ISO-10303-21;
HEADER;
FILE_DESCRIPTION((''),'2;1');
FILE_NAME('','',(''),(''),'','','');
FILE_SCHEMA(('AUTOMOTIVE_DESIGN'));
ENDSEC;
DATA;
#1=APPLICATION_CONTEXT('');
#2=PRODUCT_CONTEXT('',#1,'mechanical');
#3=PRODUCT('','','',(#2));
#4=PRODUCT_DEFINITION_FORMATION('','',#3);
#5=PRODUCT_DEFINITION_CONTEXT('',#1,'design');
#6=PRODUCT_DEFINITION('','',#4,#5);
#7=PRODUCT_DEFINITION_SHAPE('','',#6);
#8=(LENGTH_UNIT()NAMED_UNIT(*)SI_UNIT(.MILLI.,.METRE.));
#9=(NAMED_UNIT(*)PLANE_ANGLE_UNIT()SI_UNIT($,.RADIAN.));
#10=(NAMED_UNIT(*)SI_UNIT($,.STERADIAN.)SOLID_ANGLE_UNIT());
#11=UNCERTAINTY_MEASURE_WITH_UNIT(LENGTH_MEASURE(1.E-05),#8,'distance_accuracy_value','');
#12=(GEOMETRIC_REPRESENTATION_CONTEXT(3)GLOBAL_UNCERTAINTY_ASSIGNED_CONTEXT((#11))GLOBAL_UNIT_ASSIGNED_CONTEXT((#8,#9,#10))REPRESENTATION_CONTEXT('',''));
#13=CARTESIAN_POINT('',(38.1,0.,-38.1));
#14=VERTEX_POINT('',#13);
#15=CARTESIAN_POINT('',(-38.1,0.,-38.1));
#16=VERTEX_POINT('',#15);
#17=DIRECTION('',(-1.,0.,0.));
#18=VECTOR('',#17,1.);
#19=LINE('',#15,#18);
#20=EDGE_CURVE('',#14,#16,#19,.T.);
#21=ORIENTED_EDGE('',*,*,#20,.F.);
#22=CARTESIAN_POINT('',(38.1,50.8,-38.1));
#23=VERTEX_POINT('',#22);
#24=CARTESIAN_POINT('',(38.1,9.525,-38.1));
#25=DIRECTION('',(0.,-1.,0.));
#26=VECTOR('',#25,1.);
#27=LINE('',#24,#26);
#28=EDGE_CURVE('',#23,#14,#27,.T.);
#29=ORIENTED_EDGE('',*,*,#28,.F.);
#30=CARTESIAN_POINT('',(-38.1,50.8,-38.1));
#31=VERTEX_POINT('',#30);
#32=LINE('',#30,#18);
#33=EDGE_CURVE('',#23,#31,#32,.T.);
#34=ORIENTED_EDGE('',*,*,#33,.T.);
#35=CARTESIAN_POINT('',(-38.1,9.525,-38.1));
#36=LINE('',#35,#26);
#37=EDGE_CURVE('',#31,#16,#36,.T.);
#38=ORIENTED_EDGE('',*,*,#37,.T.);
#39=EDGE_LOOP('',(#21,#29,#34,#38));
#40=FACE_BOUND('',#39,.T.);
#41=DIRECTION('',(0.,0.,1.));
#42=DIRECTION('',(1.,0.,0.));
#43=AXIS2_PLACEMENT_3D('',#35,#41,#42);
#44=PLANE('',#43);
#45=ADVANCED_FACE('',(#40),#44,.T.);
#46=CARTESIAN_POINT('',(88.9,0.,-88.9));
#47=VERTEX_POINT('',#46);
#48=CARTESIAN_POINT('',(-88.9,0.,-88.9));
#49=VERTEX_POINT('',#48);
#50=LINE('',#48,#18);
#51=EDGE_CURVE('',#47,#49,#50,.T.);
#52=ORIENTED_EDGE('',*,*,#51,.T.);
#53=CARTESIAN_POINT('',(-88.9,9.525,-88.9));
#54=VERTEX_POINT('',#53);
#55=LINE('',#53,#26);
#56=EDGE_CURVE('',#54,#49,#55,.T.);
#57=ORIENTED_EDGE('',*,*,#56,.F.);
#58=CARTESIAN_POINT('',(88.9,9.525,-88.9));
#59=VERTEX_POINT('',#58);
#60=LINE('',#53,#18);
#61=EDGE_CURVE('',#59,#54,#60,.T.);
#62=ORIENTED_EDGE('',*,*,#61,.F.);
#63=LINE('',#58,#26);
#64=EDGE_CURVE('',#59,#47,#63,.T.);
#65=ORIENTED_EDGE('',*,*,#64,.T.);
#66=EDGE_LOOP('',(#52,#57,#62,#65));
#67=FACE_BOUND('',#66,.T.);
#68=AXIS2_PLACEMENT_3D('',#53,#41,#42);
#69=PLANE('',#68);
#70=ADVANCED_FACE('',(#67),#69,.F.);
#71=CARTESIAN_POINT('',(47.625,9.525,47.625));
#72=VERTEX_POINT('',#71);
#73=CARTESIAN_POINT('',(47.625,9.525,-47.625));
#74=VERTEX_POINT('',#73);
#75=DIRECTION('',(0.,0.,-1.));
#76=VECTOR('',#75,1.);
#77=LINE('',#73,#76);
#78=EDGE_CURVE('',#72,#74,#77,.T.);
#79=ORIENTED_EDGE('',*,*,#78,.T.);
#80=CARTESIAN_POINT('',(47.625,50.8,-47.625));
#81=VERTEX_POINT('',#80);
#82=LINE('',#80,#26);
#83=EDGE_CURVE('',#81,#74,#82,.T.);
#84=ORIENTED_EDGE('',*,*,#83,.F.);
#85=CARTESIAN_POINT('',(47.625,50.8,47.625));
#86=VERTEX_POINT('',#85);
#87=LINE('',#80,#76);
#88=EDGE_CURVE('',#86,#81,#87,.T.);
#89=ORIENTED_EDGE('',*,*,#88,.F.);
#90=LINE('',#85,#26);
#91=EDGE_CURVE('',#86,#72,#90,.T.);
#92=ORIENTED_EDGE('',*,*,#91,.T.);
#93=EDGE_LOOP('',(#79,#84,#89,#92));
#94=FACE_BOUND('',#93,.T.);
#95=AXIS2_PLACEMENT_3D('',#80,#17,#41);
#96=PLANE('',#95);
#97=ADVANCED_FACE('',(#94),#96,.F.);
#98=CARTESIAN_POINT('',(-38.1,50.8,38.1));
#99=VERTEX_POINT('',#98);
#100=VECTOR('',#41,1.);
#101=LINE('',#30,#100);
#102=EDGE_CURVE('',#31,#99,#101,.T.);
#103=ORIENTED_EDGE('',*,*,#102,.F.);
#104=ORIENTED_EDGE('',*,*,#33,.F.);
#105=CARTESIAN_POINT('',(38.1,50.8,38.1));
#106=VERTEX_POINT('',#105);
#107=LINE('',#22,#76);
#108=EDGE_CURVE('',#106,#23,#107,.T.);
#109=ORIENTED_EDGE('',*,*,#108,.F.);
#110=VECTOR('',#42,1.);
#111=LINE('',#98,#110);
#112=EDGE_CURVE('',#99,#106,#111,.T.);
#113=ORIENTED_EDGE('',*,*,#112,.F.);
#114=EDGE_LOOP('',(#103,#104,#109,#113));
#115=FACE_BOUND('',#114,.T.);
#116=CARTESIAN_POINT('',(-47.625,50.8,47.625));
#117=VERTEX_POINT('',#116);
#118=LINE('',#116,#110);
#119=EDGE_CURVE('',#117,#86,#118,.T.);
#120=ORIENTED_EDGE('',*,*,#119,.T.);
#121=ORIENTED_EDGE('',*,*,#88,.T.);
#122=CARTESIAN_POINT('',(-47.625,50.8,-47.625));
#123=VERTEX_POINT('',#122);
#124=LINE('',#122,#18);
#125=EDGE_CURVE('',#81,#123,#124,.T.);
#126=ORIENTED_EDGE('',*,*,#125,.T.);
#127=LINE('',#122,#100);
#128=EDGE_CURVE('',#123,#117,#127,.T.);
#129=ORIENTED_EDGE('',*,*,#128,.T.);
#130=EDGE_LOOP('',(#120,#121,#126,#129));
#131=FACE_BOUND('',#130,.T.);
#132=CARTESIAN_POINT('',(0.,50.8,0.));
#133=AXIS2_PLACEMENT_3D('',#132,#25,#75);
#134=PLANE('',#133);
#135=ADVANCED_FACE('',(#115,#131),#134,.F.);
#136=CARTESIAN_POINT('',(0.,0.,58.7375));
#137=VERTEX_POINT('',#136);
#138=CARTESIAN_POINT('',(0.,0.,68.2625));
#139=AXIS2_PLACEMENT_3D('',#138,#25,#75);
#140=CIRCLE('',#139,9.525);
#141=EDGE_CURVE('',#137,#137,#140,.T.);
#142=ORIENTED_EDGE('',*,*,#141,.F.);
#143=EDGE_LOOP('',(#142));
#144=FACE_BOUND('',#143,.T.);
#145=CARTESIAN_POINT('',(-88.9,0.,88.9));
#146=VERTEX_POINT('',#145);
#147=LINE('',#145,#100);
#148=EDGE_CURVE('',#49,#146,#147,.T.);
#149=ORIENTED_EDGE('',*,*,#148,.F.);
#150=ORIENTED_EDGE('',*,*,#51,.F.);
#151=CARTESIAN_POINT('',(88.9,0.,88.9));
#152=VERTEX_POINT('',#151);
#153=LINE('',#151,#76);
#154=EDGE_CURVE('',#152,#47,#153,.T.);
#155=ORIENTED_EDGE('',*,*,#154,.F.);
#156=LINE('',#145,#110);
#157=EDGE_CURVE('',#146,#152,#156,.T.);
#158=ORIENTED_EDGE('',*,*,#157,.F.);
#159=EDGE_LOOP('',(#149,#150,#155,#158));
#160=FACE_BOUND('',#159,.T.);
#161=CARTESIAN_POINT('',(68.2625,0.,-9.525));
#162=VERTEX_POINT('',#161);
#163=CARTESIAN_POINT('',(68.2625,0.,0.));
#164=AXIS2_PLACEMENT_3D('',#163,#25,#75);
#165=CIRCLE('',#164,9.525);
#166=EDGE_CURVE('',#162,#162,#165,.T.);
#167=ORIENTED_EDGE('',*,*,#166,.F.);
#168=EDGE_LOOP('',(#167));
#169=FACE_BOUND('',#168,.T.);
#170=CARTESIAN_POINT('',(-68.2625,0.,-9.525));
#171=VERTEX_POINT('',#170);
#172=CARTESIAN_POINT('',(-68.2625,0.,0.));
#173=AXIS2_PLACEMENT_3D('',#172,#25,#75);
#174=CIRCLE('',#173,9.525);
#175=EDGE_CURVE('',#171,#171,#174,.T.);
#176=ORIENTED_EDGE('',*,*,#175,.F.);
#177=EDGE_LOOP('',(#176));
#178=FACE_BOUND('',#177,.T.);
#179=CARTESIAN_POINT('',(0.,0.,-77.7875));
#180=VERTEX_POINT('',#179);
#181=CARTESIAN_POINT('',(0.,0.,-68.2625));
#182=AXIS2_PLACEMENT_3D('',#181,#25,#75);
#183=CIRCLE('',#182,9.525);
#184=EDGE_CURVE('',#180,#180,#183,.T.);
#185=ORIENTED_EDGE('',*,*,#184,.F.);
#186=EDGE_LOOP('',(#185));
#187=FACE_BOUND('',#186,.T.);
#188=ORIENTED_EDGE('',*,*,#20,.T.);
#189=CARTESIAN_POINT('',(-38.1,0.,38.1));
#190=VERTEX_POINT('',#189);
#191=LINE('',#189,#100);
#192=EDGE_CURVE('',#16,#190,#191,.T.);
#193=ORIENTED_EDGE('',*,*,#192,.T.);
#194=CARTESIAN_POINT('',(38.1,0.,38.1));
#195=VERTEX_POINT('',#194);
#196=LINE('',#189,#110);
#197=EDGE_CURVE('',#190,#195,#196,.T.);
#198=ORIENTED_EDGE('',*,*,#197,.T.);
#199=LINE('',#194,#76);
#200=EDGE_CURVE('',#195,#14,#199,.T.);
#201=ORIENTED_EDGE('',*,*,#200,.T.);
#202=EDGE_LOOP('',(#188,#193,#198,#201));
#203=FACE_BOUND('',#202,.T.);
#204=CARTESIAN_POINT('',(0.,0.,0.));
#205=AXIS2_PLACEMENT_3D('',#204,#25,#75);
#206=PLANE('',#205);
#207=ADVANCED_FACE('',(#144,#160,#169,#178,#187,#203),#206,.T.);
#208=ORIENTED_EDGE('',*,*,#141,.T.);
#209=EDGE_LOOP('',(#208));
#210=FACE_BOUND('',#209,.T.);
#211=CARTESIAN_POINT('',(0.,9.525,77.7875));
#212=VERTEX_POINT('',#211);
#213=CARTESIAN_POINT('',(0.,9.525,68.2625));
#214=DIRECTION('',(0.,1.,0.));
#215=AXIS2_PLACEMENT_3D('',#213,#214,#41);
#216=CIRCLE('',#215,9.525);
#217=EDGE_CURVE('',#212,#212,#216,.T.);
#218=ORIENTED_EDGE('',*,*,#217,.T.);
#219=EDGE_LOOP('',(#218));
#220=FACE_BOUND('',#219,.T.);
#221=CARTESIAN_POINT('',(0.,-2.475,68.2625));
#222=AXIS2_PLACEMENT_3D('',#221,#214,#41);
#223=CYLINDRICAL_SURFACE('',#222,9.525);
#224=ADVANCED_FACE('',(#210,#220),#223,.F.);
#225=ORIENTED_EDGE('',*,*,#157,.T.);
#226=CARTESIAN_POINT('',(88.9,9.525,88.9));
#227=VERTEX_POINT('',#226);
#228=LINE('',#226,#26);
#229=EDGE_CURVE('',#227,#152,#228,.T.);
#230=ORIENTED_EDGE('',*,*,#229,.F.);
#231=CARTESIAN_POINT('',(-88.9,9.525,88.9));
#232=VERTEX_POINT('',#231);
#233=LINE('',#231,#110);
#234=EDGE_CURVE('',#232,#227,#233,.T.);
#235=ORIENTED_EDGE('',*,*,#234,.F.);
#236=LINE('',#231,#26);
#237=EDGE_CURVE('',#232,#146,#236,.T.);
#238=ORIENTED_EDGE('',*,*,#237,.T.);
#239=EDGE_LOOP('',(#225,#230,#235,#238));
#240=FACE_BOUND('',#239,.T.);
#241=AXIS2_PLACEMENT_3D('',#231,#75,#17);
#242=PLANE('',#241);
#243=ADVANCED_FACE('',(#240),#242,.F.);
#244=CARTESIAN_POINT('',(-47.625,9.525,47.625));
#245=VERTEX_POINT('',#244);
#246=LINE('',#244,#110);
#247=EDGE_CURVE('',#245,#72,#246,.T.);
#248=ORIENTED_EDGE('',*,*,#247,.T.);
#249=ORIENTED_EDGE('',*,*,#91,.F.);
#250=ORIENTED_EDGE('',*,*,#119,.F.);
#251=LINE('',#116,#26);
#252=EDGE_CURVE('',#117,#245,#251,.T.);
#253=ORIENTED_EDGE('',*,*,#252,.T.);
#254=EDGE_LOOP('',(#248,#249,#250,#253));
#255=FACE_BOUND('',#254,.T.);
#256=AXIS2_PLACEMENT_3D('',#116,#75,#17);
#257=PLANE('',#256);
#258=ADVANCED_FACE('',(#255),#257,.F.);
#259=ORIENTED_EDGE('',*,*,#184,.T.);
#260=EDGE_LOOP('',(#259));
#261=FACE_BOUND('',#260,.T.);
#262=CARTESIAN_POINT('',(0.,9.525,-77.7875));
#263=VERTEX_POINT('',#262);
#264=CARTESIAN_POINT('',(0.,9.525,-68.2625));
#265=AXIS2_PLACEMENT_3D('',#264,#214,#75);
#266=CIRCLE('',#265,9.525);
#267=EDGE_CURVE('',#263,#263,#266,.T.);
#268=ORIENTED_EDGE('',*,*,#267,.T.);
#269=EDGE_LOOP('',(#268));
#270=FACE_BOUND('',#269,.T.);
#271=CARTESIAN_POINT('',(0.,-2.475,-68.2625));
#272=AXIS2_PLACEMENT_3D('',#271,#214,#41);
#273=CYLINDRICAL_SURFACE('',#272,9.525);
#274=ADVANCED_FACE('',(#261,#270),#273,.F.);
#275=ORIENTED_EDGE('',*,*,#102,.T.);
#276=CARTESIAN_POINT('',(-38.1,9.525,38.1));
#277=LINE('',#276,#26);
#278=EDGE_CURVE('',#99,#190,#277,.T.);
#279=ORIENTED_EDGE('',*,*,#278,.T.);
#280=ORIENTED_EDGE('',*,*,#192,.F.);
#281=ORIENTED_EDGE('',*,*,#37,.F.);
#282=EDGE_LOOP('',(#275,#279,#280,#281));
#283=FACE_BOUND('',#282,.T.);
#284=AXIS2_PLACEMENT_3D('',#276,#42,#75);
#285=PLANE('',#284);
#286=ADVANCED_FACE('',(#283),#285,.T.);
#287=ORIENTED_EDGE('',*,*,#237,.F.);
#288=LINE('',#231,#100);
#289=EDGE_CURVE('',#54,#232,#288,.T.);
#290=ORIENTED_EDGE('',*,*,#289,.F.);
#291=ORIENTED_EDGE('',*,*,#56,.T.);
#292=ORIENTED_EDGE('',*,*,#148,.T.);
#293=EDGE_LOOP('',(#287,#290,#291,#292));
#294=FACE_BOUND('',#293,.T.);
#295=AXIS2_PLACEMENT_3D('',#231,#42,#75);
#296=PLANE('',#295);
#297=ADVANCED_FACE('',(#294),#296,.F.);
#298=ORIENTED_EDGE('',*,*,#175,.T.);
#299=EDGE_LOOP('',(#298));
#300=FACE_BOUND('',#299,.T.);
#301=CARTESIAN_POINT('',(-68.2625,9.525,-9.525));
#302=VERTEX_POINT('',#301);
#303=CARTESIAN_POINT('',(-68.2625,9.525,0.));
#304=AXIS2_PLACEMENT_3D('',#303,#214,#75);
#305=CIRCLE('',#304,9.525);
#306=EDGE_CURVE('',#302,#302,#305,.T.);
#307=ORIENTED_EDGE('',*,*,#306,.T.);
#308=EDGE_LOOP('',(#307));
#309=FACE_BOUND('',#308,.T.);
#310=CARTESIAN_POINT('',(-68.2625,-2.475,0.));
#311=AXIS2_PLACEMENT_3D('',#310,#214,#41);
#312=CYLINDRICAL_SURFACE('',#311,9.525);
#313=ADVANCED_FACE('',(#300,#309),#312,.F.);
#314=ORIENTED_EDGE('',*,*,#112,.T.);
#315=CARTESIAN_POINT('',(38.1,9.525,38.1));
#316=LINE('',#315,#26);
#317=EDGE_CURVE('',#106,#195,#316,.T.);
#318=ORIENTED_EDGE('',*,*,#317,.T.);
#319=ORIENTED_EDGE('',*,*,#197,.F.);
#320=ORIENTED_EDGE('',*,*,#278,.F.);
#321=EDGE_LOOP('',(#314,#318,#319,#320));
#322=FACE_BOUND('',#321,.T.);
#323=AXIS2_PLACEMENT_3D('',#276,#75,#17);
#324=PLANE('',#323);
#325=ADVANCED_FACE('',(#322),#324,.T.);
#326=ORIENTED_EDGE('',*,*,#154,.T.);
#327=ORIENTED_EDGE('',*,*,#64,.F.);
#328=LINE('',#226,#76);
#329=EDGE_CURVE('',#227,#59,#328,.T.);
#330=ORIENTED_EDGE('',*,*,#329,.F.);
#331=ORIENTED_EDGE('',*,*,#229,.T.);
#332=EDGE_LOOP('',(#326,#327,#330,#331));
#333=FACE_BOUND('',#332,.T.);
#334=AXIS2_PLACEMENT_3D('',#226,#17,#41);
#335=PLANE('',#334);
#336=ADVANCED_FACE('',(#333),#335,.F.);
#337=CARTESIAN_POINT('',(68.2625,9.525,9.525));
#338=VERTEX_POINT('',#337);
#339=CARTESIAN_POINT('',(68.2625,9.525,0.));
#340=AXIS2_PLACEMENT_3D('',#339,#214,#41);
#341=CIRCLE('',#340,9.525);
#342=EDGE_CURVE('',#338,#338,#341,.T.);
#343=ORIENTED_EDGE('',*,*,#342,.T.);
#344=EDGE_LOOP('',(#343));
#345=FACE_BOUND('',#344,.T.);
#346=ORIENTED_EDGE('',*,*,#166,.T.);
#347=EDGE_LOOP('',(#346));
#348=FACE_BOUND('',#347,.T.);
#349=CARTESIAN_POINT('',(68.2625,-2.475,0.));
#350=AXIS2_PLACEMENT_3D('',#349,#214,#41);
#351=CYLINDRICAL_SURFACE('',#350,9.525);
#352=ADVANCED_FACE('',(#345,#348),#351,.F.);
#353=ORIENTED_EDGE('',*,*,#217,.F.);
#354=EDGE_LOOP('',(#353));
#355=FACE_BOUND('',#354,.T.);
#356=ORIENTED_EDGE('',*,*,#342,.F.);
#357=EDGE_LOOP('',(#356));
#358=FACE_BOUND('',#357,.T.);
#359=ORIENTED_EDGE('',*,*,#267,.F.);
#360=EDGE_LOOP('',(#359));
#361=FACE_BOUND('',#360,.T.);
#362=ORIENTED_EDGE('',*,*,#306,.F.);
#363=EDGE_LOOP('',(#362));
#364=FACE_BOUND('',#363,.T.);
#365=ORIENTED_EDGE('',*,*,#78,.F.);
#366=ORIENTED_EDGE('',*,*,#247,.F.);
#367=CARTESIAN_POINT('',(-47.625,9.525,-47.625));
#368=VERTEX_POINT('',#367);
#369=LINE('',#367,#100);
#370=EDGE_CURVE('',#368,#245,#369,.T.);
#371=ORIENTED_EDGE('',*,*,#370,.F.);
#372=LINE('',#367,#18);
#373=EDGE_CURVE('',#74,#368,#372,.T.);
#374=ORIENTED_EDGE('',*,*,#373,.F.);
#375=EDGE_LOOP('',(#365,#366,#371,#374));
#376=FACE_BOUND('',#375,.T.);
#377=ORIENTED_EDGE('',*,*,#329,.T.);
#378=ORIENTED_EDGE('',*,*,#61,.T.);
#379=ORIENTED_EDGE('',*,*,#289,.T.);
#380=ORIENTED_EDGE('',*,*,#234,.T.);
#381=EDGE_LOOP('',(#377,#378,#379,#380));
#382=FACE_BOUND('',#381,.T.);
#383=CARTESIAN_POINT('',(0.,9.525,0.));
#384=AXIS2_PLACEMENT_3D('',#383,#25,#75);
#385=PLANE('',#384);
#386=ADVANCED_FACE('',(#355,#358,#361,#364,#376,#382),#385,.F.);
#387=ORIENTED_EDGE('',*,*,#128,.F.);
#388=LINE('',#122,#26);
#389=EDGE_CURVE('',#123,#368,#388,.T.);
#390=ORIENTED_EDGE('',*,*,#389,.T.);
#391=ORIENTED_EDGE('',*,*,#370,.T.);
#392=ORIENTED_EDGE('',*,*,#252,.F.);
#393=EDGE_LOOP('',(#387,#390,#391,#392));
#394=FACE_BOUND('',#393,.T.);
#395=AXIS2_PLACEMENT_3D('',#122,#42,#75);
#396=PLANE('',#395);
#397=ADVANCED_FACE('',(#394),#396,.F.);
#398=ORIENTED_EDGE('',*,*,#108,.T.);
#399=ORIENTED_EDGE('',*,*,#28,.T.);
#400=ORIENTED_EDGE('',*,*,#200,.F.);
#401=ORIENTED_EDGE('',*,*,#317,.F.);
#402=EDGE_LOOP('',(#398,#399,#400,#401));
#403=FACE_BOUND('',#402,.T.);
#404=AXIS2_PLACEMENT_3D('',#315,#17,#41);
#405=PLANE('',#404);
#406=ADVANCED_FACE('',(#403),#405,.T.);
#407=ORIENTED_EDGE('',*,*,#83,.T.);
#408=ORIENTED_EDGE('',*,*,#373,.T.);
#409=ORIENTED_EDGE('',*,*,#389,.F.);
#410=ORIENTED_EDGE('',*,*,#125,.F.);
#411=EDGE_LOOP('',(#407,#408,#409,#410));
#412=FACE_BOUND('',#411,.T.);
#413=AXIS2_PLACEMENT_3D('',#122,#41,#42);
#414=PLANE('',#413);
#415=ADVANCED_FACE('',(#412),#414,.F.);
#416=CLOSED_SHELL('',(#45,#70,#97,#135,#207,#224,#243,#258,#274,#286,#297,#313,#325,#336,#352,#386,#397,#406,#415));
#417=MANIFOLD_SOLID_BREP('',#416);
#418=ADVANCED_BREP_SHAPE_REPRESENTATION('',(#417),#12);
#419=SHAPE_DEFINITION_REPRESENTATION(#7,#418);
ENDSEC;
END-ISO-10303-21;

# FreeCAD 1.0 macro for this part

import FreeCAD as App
import Part
import Sketcher
from FreeCAD import Vector
Q = App.Units.Quantity

doc = App.newDocument("Part")
body = doc.addObject("PartDesign::Body", "Body")

# Sketch on XZ plane
sketch1 = body.newObject("Sketcher::SketchObject", "Sketch")
sketch1.AttachmentSupport = (doc.getObject("XZ_Plane"), [""])
sketch1.MapMode = "FlatFace"
sketch1.addGeometry(Part.LineSegment(Vector(-89, -89, 0), Vector(-89, 89, 0)), False)
sketch1.addGeometry(Part.LineSegment(Vector(-89, 89, 0), Vector(89, 89, 0)), False)
sketch1.addGeometry(Part.LineSegment(Vector(89, 89, 0), Vector(89, -89, 0)), False)
sketch1.addGeometry(Part.LineSegment(Vector(89, -89, 0), Vector(-89, -89, 0)), False)
sketch1.addGeometry(Part.LineSegment(Vector(38, 38, 0), Vector(-38, 38, 0)), False)
sketch1.addGeometry(Part.LineSegment(Vector(-38, 38, 0), Vector(-38, -38, 0)), False)
sketch1.addGeometry(Part.LineSegment(Vector(-38, -38, 0), Vector(38, -38, 0)), False)
sketch1.addGeometry(Part.LineSegment(Vector(38, -38, 0), Vector(38, 38, 0)), False)
sketch1.addConstraint(Sketcher.Constraint("Coincident", 0, 2, 1, 1))
sketch1.addConstraint(Sketcher.Constraint("Coincident", 1, 2, 2, 1))
sketch1.addConstraint(Sketcher.Constraint("Coincident", 2, 2, 3, 1))
sketch1.addConstraint(Sketcher.Constraint("Coincident", 3, 2, 0, 1))
sketch1.addConstraint(Sketcher.Constraint("Coincident", 4, 2, 5, 1))
sketch1.addConstraint(Sketcher.Constraint("Coincident", 5, 2, 6, 1))
sketch1.addConstraint(Sketcher.Constraint("Coincident", 6, 2, 7, 1))
sketch1.addConstraint(Sketcher.Constraint("Coincident", 7, 2, 4, 1))
sketch1.addConstraint(Sketcher.Constraint("Vertical", 0))
sketch1.addConstraint(Sketcher.Constraint("Horizontal", 1))
sketch1.addConstraint(Sketcher.Constraint("Vertical", 2))
sketch1.addConstraint(Sketcher.Constraint("Horizontal", 3))
sketch1.addConstraint(Sketcher.Constraint("Horizontal", 4))
sketch1.addConstraint(Sketcher.Constraint("Vertical", 5))
sketch1.addConstraint(Sketcher.Constraint("Horizontal", 6))
sketch1.addConstraint(Sketcher.Constraint("Vertical", 7))
sketch1.addConstraint(Sketcher.Constraint("Symmetric", 0, 2, 2, 2, -1, 1))
sketch1.addConstraint(Sketcher.Constraint("Symmetric", 4, 2, 6, 2, -1, 1))
sketch1.addConstraint(Sketcher.Constraint("Equal", 3, 0))
sketch1.addConstraint(Sketcher.Constraint("Equal", 6, 5))
sketch1.addConstraint(Sketcher.Constraint("DistanceX", 1, 1, 1, 2, Q("7 in")))
sketch1.addConstraint(Sketcher.Constraint("DistanceX", 4, 2, 4, 1, Q("3 in")))
pad1 = body.newObject("PartDesign::Pad", "Pad")
pad1.Profile = sketch1
pad1.Length = Q("0.375 in")
pad1.Reversed = True

# Sketch on XZ plane
sketch2 = body.newObject("Sketcher::SketchObject", "Sketch001")
sketch2.AttachmentSupport = (doc.getObject("XZ_Plane"), [""])
sketch2.MapMode = "FlatFace"
sketch2.AttachmentOffset = App.Placement(Vector(0, 0, -0.375 * 25.4), App.Rotation())
sketch2.addGeometry(Part.LineSegment(Vector(-48, -48, 0), Vector(-48, 48, 0)), False)
sketch2.addGeometry(Part.LineSegment(Vector(-48, 48, 0), Vector(48, 48, 0)), False)
sketch2.addGeometry(Part.LineSegment(Vector(48, 48, 0), Vector(48, -48, 0)), False)
sketch2.addGeometry(Part.LineSegment(Vector(48, -48, 0), Vector(-48, -48, 0)), False)
sketch2.addGeometry(Part.LineSegment(Vector(38, 38, 0), Vector(-38, 38, 0)), False)
sketch2.addGeometry(Part.LineSegment(Vector(-38, 38, 0), Vector(-38, -38, 0)), False)
sketch2.addGeometry(Part.LineSegment(Vector(-38, -38, 0), Vector(38, -38, 0)), False)
sketch2.addGeometry(Part.LineSegment(Vector(38, -38, 0), Vector(38, 38, 0)), False)
sketch2.addConstraint(Sketcher.Constraint("Coincident", 0, 2, 1, 1))
sketch2.addConstraint(Sketcher.Constraint("Coincident", 1, 2, 2, 1))
sketch2.addConstraint(Sketcher.Constraint("Coincident", 2, 2, 3, 1))
sketch2.addConstraint(Sketcher.Constraint("Coincident", 3, 2, 0, 1))
sketch2.addConstraint(Sketcher.Constraint("Coincident", 4, 2, 5, 1))
sketch2.addConstraint(Sketcher.Constraint("Coincident", 5, 2, 6, 1))
sketch2.addConstraint(Sketcher.Constraint("Coincident", 6, 2, 7, 1))
sketch2.addConstraint(Sketcher.Constraint("Coincident", 7, 2, 4, 1))
sketch2.addConstraint(Sketcher.Constraint("Vertical", 0))
sketch2.addConstraint(Sketcher.Constraint("Horizontal", 1))
sketch2.addConstraint(Sketcher.Constraint("Vertical", 2))
sketch2.addConstraint(Sketcher.Constraint("Horizontal", 3))
sketch2.addConstraint(Sketcher.Constraint("Horizontal", 4))
sketch2.addConstraint(Sketcher.Constraint("Vertical", 5))
sketch2.addConstraint(Sketcher.Constraint("Horizontal", 6))
sketch2.addConstraint(Sketcher.Constraint("Vertical", 7))
sketch2.addConstraint(Sketcher.Constraint("Symmetric", 0, 2, 2, 2, -1, 1))
sketch2.addConstraint(Sketcher.Constraint("Symmetric", 4, 2, 6, 2, -1, 1))
sketch2.addConstraint(Sketcher.Constraint("Equal", 3, 0))
sketch2.addConstraint(Sketcher.Constraint("Equal", 6, 5))
sketch2.addConstraint(Sketcher.Constraint("DistanceX", 4, 2, 4, 1, Q("3 in")))
sketch2.addConstraint(Sketcher.Constraint("DistanceX", 1, 1, 1, 2, Q("3.75 in")))
pad2 = body.newObject("PartDesign::Pad", "Pad001")
pad2.Profile = sketch2
pad2.Length = Q("1.625 in")
pad2.Reversed = True

# Sketch on XZ plane
sketch3 = body.newObject("Sketcher::SketchObject", "Sketch002")
sketch3.AttachmentSupport = (doc.getObject("XZ_Plane"), [""])
sketch3.MapMode = "FlatFace"
sketch3.AttachmentOffset = App.Placement(Vector(0, 0, -0.375 * 25.4), App.Rotation())
sketch3.addGeometry(Part.Circle(Vector(0, 68, 0), Vector(0, 0, 1), 10), False)
sketch3.addGeometry(Part.Circle(Vector(0, -68, 0), Vector(0, 0, 1), 10), False)
sketch3.addGeometry(Part.Circle(Vector(-68, 0, 0), Vector(0, 0, 1), 10), False)
sketch3.addGeometry(Part.Circle(Vector(68, 0, 0), Vector(0, 0, 1), 10), False)
sketch3.addConstraint(Sketcher.Constraint("Equal", 0, 1))
sketch3.addConstraint(Sketcher.Constraint("Equal", 1, 2))
sketch3.addConstraint(Sketcher.Constraint("Equal", 2, 3))
sketch3.addConstraint(Sketcher.Constraint("Symmetric", 0, 3, 1, 3, -1, 1))
sketch3.addConstraint(Sketcher.Constraint("Symmetric", 2, 3, 3, 3, -1, 1))
sketch3.addConstraint(Sketcher.Constraint("PointOnObject", 0, 3, -2))
sketch3.addConstraint(Sketcher.Constraint("PointOnObject", 2, 3, -1))
sketch3.addConstraint(Sketcher.Constraint("Diameter", 0, Q("0.75 in")))
sketch3.addConstraint(Sketcher.Constraint("DistanceY", -1, 1, 0, 3, Q("2.6875 in")))
sketch3.addConstraint(Sketcher.Constraint("DistanceX", 2, 3, -1, 1, Q("2.6875 in")))
pocket1 = body.newObject("PartDesign::Pocket", "Pocket")
pocket1.Profile = sketch3
pocket1.Length = 12
pocket1.Reversed = True

doc.recompute()
